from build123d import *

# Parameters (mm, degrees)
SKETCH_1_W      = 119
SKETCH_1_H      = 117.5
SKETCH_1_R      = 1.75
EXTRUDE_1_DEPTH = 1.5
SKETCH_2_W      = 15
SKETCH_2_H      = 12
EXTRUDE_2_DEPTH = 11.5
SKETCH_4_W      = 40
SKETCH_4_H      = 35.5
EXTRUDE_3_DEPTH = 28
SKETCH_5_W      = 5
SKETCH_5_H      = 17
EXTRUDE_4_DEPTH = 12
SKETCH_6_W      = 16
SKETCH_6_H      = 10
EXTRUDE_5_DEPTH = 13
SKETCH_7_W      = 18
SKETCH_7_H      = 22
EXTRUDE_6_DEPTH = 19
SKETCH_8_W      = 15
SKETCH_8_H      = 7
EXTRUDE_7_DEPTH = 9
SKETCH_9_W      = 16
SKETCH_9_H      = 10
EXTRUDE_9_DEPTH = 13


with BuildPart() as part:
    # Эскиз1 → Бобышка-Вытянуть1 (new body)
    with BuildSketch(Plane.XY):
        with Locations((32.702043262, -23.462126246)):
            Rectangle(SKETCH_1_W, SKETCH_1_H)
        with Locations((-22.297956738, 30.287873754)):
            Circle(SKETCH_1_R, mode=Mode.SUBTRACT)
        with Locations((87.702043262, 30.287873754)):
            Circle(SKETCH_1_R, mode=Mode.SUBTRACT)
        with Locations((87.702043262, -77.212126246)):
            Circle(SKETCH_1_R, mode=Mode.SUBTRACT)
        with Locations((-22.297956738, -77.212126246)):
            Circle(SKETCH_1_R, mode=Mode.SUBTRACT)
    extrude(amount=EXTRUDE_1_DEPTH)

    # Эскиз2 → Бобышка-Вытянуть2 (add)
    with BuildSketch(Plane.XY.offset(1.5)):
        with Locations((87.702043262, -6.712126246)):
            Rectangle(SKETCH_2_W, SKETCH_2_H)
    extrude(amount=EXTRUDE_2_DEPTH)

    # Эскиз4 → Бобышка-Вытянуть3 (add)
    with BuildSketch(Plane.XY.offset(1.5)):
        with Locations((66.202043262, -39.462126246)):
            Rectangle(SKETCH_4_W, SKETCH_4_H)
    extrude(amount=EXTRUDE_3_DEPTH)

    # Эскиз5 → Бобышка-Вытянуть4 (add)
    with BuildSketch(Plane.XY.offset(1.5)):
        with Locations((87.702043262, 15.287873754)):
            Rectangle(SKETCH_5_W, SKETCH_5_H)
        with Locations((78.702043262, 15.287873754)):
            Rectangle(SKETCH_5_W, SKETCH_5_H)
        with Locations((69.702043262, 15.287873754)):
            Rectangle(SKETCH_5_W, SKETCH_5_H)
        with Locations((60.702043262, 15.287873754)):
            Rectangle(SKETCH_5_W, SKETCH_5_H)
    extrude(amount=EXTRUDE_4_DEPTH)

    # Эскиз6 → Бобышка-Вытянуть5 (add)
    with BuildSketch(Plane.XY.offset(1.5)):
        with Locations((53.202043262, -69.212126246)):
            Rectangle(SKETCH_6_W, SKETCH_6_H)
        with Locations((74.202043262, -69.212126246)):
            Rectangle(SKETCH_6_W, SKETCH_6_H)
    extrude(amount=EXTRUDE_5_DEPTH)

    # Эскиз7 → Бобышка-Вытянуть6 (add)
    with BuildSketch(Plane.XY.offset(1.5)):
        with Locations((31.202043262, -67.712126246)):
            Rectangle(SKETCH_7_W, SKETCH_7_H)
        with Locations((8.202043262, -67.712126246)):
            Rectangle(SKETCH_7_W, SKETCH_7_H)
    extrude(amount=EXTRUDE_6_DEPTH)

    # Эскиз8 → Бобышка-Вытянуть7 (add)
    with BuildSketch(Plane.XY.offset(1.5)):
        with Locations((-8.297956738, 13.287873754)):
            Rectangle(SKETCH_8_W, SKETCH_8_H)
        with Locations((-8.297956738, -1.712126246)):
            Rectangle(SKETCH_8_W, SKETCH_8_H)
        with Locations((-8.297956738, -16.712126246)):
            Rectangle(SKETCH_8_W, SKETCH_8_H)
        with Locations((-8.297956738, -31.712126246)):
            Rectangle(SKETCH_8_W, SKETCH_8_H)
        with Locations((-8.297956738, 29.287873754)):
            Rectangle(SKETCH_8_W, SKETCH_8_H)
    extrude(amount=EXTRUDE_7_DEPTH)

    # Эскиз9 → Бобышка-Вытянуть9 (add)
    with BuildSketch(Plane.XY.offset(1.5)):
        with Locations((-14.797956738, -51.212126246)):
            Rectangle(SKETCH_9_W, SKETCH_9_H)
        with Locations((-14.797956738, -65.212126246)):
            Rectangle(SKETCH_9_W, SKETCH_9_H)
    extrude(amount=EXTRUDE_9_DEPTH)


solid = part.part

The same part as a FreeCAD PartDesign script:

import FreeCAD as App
import Part
import Sketcher
Q = App.Units.Quantity

doc = App.newDocument("Part")
params = doc.addObject("Spreadsheet::Sheet", "Params")
for row, (alias, value) in enumerate([
    ("sketch1_diameter", "3.5 mm"),
    ("sketch1_width", "119 mm"),
    ("sketch1_height", "117.5 mm"),
    ("pad1_length", "1.5 mm"),
    ("sketch2_width", "15 mm"),
    ("sketch2_height", "12 mm"),
    ("pad2_length", "11.5 mm"),
    ("sketch3_width", "40 mm"),
    ("sketch3_height", "35.5 mm"),
    ("pad3_length", "28 mm"),
    ("sketch4_width", "5 mm"),
    ("sketch4_height", "17 mm"),
    ("pad4_length", "12 mm"),
    ("sketch5_width", "16 mm"),
    ("sketch5_height", "10 mm"),
    ("pad5_length", "13 mm"),
    ("sketch6_width", "18 mm"),
    ("sketch6_height", "22 mm"),
    ("pad6_length", "19 mm"),
    ("sketch7_width", "15 mm"),
    ("sketch7_height", "7 mm"),
    ("pad7_length", "9 mm"),
    ("sketch8_width", "16 mm"),
    ("sketch8_height", "10 mm"),
    ("pad8_length", "13 mm"),
], start=1):
    params.set(f"A{row}", alias)
    params.set(f"B{row}", "=" + value)
    params.setAlias(f"B{row}", alias)

body = doc.addObject("PartDesign::Body", "Body")

sketch1 = doc.addObject("Sketcher::SketchObject", "Sketch")
body.addObject(sketch1)
sketch1.AttachmentSupport = (doc.XY_Plane, [""])
sketch1.MapMode = "FlatFace"
sketch1.addGeometry([
    Part.LineSegment(App.Vector(-26.8, 35.3, 0), App.Vector(-26.8, -82.2, 0)),
    Part.LineSegment(App.Vector(-26.8, -82.2, 0), App.Vector(92.2, -82.2, 0)),
    Part.LineSegment(App.Vector(92.2, -82.2, 0), App.Vector(92.2, 35.3, 0)),
    Part.LineSegment(App.Vector(92.2, 35.3, 0), App.Vector(-26.8, 35.3, 0)),
    Part.Circle(App.Vector(-22.3, -77.2, 0), App.Vector(0, 0, 1), 1.8),
    Part.Circle(App.Vector(87.7, -77.2, 0), App.Vector(0, 0, 1), 1.8),
    Part.Circle(App.Vector(-22.3, 30.3, 0), App.Vector(0, 0, 1), 1.8),
    Part.Circle(App.Vector(87.7, 30.3, 0), App.Vector(0, 0, 1), 1.8),
], False)
sketch1.addConstraint([
    Sketcher.Constraint("Coincident", 0, 2, 1, 1),
    Sketcher.Constraint("Coincident", 1, 2, 2, 1),
    Sketcher.Constraint("Coincident", 2, 2, 3, 1),
    Sketcher.Constraint("Coincident", 3, 2, 0, 1),
    Sketcher.Constraint("Vertical", 0),
    Sketcher.Constraint("Horizontal", 1),
    Sketcher.Constraint("Vertical", 2),
    Sketcher.Constraint("Horizontal", 3),
    Sketcher.Constraint("Equal", 4, 5),
    Sketcher.Constraint("Equal", 5, 6),
    Sketcher.Constraint("Equal", 6, 7),
    Sketcher.Constraint("Horizontal", 4, 3, 5, 3),
    Sketcher.Constraint("Horizontal", 6, 3, 7, 3),
    Sketcher.Constraint("Vertical", 4, 3, 6, 3),
    Sketcher.Constraint("Vertical", 5, 3, 7, 3),
    Sketcher.Constraint("Diameter", 4, Q("3.5 mm")),
    Sketcher.Constraint("DistanceX", 1, 1, 1, 2, Q("119 mm")),
    Sketcher.Constraint("DistanceY", 0, 2, 0, 1, Q("117.5 mm")),
    Sketcher.Constraint("DistanceX", 4, 3, 5, 3, Q("110 mm")),
    Sketcher.Constraint("DistanceY", 0, 2, 4, 3, Q("5 mm")),
    Sketcher.Constraint("DistanceY", 7, 3, 2, 2, Q("5 mm")),
    Sketcher.Constraint("DistanceX", 0, 2, 4, 3, Q("4.5 mm")),
    Sketcher.Constraint("DistanceX", 4, 3, -1, 1, Q("22.297957 mm")),
    Sketcher.Constraint("DistanceY", 4, 3, -1, 1, Q("77.212126 mm")),
])
sketch1.setExpression("Constraints[15]", "Params.sketch1_diameter")
sketch1.setExpression("Constraints[16]", "Params.sketch1_width")
sketch1.setExpression("Constraints[17]", "Params.sketch1_height")
pad1 = doc.addObject("PartDesign::Pad", "Pad")
body.addObject(pad1)
pad1.Profile = sketch1
pad1.setExpression("Length", "Params.pad1_length")

sketch2 = doc.addObject("Sketcher::SketchObject", "Sketch001")
body.addObject(sketch2)
sketch2.AttachmentSupport = (doc.XY_Plane, [""])
sketch2.MapMode = "FlatFace"
sketch2.AttachmentOffset = App.Placement(App.Vector(0, 0, 1.5), App.Rotation())
sketch2.addGeometry([
    Part.LineSegment(App.Vector(80, -1, 0), App.Vector(80, -13, 0)),
    Part.LineSegment(App.Vector(80, -13, 0), App.Vector(95, -13, 0)),
    Part.LineSegment(App.Vector(95, -13, 0), App.Vector(95, -1, 0)),
    Part.LineSegment(App.Vector(95, -1, 0), App.Vector(80, -1, 0)),
], False)
sketch2.addConstraint([
    Sketcher.Constraint("Coincident", 0, 2, 1, 1),
    Sketcher.Constraint("Coincident", 1, 2, 2, 1),
    Sketcher.Constraint("Coincident", 2, 2, 3, 1),
    Sketcher.Constraint("Coincident", 3, 2, 0, 1),
    Sketcher.Constraint("Vertical", 0),
    Sketcher.Constraint("Horizontal", 1),
    Sketcher.Constraint("Vertical", 2),
    Sketcher.Constraint("Horizontal", 3),
    Sketcher.Constraint("DistanceX", 1, 1, 1, 2, Q("15 mm")),
    Sketcher.Constraint("DistanceY", 0, 2, 0, 1, Q("12 mm")),
    Sketcher.Constraint("DistanceX", -1, 1, 0, 2, Q("80.202043 mm")),
    Sketcher.Constraint("DistanceY", 0, 2, -1, 1, Q("12.712126 mm")),
])
sketch2.setExpression("Constraints[8]", "Params.sketch2_width")
sketch2.setExpression("Constraints[9]", "Params.sketch2_height")
pad2 = doc.addObject("PartDesign::Pad", "Pad001")
body.addObject(pad2)
pad2.Profile = sketch2
pad2.setExpression("Length", "Params.pad2_length")

sketch3 = doc.addObject("Sketcher::SketchObject", "Sketch002")
body.addObject(sketch3)
sketch3.AttachmentSupport = (doc.XY_Plane, [""])
sketch3.MapMode = "FlatFace"
sketch3.AttachmentOffset = App.Placement(App.Vector(0, 0, 1.5), App.Rotation())
sketch3.addGeometry([
    Part.LineSegment(App.Vector(46, -22, 0), App.Vector(46, -57, 0)),
    Part.LineSegment(App.Vector(46, -57, 0), App.Vector(86, -57, 0)),
    Part.LineSegment(App.Vector(86, -57, 0), App.Vector(86, -22, 0)),
    Part.LineSegment(App.Vector(86, -22, 0), App.Vector(46, -22, 0)),
], False)
sketch3.addConstraint([
    Sketcher.Constraint("Coincident", 0, 2, 1, 1),
    Sketcher.Constraint("Coincident", 1, 2, 2, 1),
    Sketcher.Constraint("Coincident", 2, 2, 3, 1),
    Sketcher.Constraint("Coincident", 3, 2, 0, 1),
    Sketcher.Constraint("Vertical", 0),
    Sketcher.Constraint("Horizontal", 1),
    Sketcher.Constraint("Vertical", 2),
    Sketcher.Constraint("Horizontal", 3),
    Sketcher.Constraint("DistanceX", 1, 1, 1, 2, Q("40 mm")),
    Sketcher.Constraint("DistanceY", 0, 2, 0, 1, Q("35.5 mm")),
    Sketcher.Constraint("DistanceX", -1, 1, 0, 2, Q("46.202043 mm")),
    Sketcher.Constraint("DistanceY", 0, 2, -1, 1, Q("57.212126 mm")),
])
sketch3.setExpression("Constraints[8]", "Params.sketch3_width")
sketch3.setExpression("Constraints[9]", "Params.sketch3_height")
pad3 = doc.addObject("PartDesign::Pad", "Pad002")
body.addObject(pad3)
pad3.Profile = sketch3
pad3.setExpression("Length", "Params.pad3_length")

sketch4 = doc.addObject("Sketcher::SketchObject", "Sketch003")
body.addObject(sketch4)
sketch4.AttachmentSupport = (doc.XY_Plane, [""])
sketch4.MapMode = "FlatFace"
sketch4.AttachmentOffset = App.Placement(App.Vector(0, 0, 1.5), App.Rotation())
sketch4.addGeometry([
    Part.LineSegment(App.Vector(85, 24, 0), App.Vector(85, 7, 0)),
    Part.LineSegment(App.Vector(85, 7, 0), App.Vector(90, 7, 0)),
    Part.LineSegment(App.Vector(90, 7, 0), App.Vector(90, 24, 0)),
    Part.LineSegment(App.Vector(90, 24, 0), App.Vector(85, 24, 0)),
    Part.LineSegment(App.Vector(76, 24, 0), App.Vector(76, 7, 0)),
    Part.LineSegment(App.Vector(76, 7, 0), App.Vector(81, 7, 0)),
    Part.LineSegment(App.Vector(81, 7, 0), App.Vector(81, 24, 0)),
    Part.LineSegment(App.Vector(81, 24, 0), App.Vector(76, 24, 0)),
    Part.LineSegment(App.Vector(67, 24, 0), App.Vector(67, 7, 0)),
    Part.LineSegment(App.Vector(67, 7, 0), App.Vector(72, 7, 0)),
    Part.LineSegment(App.Vector(72, 7, 0), App.Vector(72, 24, 0)),
    Part.LineSegment(App.Vector(72, 24, 0), App.Vector(67, 24, 0)),
    Part.LineSegment(App.Vector(58, 24, 0), App.Vector(58, 7, 0)),
    Part.LineSegment(App.Vector(58, 7, 0), App.Vector(63, 7, 0)),
    Part.LineSegment(App.Vector(63, 7, 0), App.Vector(63, 24, 0)),
    Part.LineSegment(App.Vector(63, 24, 0), App.Vector(58, 24, 0)),
], False)
sketch4.addConstraint([
    Sketcher.Constraint("Coincident", 0, 2, 1, 1),
    Sketcher.Constraint("Coincident", 1, 2, 2, 1),
    Sketcher.Constraint("Coincident", 2, 2, 3, 1),
    Sketcher.Constraint("Coincident", 3, 2, 0, 1),
    Sketcher.Constraint("Coincident", 4, 2, 5, 1),
    Sketcher.Constraint("Coincident", 5, 2, 6, 1),
    Sketcher.Constraint("Coincident", 6, 2, 7, 1),
    Sketcher.Constraint("Coincident", 7, 2, 4, 1),
    Sketcher.Constraint("Coincident", 8, 2, 9, 1),
    Sketcher.Constraint("Coincident", 9, 2, 10, 1),
    Sketcher.Constraint("Coincident", 10, 2, 11, 1),
    Sketcher.Constraint("Coincident", 11, 2, 8, 1),
    Sketcher.Constraint("Coincident", 12, 2, 13, 1),
    Sketcher.Constraint("Coincident", 13, 2, 14, 1),
    Sketcher.Constraint("Coincident", 14, 2, 15, 1),
    Sketcher.Constraint("Coincident", 15, 2, 12, 1),
    Sketcher.Constraint("Vertical", 0),
    Sketcher.Constraint("Horizontal", 1),
    Sketcher.Constraint("Vertical", 2),
    Sketcher.Constraint("Horizontal", 3),
    Sketcher.Constraint("Vertical", 4),
    Sketcher.Constraint("Horizontal", 5),
    Sketcher.Constraint("Vertical", 6),
    Sketcher.Constraint("Horizontal", 7),
    Sketcher.Constraint("Vertical", 8),
    Sketcher.Constraint("Horizontal", 9),
    Sketcher.Constraint("Vertical", 10),
    Sketcher.Constraint("Horizontal", 11),
    Sketcher.Constraint("Vertical", 12),
    Sketcher.Constraint("Horizontal", 13),
    Sketcher.Constraint("Vertical", 14),
    Sketcher.Constraint("Horizontal", 15),
    Sketcher.Constraint("Horizontal", 1, 2, 4, 2),
    Sketcher.Constraint("Horizontal", 3, 2, 6, 2),
    Sketcher.Constraint("Horizontal", 5, 2, 8, 2),
    Sketcher.Constraint("Horizontal", 7, 2, 10, 2),
    Sketcher.Constraint("Horizontal", 9, 2, 12, 2),
    Sketcher.Constraint("Horizontal", 11, 2, 14, 2),
    Sketcher.Constraint("Equal", 3, 5),
    Sketcher.Constraint("Equal", 7, 9),
    Sketcher.Constraint("Equal", 11, 13),
    Sketcher.Constraint("DistanceX", 1, 1, 1, 2, Q("5 mm")),
    Sketcher.Constraint("DistanceY", 0, 2, 0, 1, Q("17 mm")),
    Sketcher.Constraint("DistanceX", 4, 2, 0, 2, Q("9 mm")),
    Sketcher.Constraint("DistanceX", 8, 2, 4, 2, Q("9 mm")),
    Sketcher.Constraint("DistanceX", 12, 2, 8, 2, Q("9 mm")),
    Sketcher.Constraint("DistanceX", -1, 1, 0, 2, Q("85.202043 mm")),
    Sketcher.Constraint("DistanceY", -1, 1, 0, 2, Q("6.787874 mm")),
])
sketch4.setExpression("Constraints[41]", "Params.sketch4_width")
sketch4.setExpression("Constraints[42]", "Params.sketch4_height")
pad4 = doc.addObject("PartDesign::Pad", "Pad003")
body.addObject(pad4)
pad4.Profile = sketch4
pad4.setExpression("Length", "Params.pad4_length")

sketch5 = doc.addObject("Sketcher::SketchObject", "Sketch004")
body.addObject(sketch5)
sketch5.AttachmentSupport = (doc.XY_Plane, [""])
sketch5.MapMode = "FlatFace"
sketch5.AttachmentOffset = App.Placement(App.Vector(0, 0, 1.5), App.Rotation())
sketch5.addGeometry([
    Part.LineSegment(App.Vector(45, -64, 0), App.Vector(45, -74, 0)),
    Part.LineSegment(App.Vector(45, -74, 0), App.Vector(61, -74, 0)),
    Part.LineSegment(App.Vector(61, -74, 0), App.Vector(61, -64, 0)),
    Part.LineSegment(App.Vector(61, -64, 0), App.Vector(45, -64, 0)),
    Part.LineSegment(App.Vector(66, -64, 0), App.Vector(66, -74, 0)),
    Part.LineSegment(App.Vector(66, -74, 0), App.Vector(82, -74, 0)),
    Part.LineSegment(App.Vector(82, -74, 0), App.Vector(82, -64, 0)),
    Part.LineSegment(App.Vector(82, -64, 0), App.Vector(66, -64, 0)),
], False)
sketch5.addConstraint([
    Sketcher.Constraint("Coincident", 0, 2, 1, 1),
    Sketcher.Constraint("Coincident", 1, 2, 2, 1),
    Sketcher.Constraint("Coincident", 2, 2, 3, 1),
    Sketcher.Constraint("Coincident", 3, 2, 0, 1),
    Sketcher.Constraint("Coincident", 4, 2, 5, 1),
    Sketcher.Constraint("Coincident", 5, 2, 6, 1),
    Sketcher.Constraint("Coincident", 6, 2, 7, 1),
    Sketcher.Constraint("Coincident", 7, 2, 4, 1),
    Sketcher.Constraint("Vertical", 0),
    Sketcher.Constraint("Horizontal", 1),
    Sketcher.Constraint("Vertical", 2),
    Sketcher.Constraint("Horizontal", 3),
    Sketcher.Constraint("Vertical", 4),
    Sketcher.Constraint("Horizontal", 5),
    Sketcher.Constraint("Vertical", 6),
    Sketcher.Constraint("Horizontal", 7),
    Sketcher.Constraint("Horizontal", 1, 2, 4, 2),
    Sketcher.Constraint("Horizontal", 3, 2, 6, 2),
    Sketcher.Constraint("Equal", 3, 5),
    Sketcher.Constraint("DistanceX", 1, 1, 1, 2, Q("16 mm")),
    Sketcher.Constraint("DistanceY", 0, 2, 0, 1, Q("10 mm")),
    Sketcher.Constraint("DistanceX", 1, 2, 4, 2, Q("5 mm")),
    Sketcher.Constraint("DistanceX", -1, 1, 0, 2, Q("45.202043 mm")),
    Sketcher.Constraint("DistanceY", 0, 2, -1, 1, Q("74.212126 mm")),
])
sketch5.setExpression("Constraints[19]", "Params.sketch5_width")
sketch5.setExpression("Constraints[20]", "Params.sketch5_height")
pad5 = doc.addObject("PartDesign::Pad", "Pad004")
body.addObject(pad5)
pad5.Profile = sketch5
pad5.setExpression("Length", "Params.pad5_length")

sketch6 = doc.addObject("Sketcher::SketchObject", "Sketch005")
body.addObject(sketch6)
sketch6.AttachmentSupport = (doc.XY_Plane, [""])
sketch6.MapMode = "FlatFace"
sketch6.AttachmentOffset = App.Placement(App.Vector(0, 0, 1.5), App.Rotation())
sketch6.addGeometry([
    Part.LineSegment(App.Vector(22, -57, 0), App.Vector(22, -79, 0)),
    Part.LineSegment(App.Vector(22, -79, 0), App.Vector(40, -79, 0)),
    Part.LineSegment(App.Vector(40, -79, 0), App.Vector(40, -57, 0)),
    Part.LineSegment(App.Vector(40, -57, 0), App.Vector(22, -57, 0)),
    Part.LineSegment(App.Vector(-1, -57, 0), App.Vector(-1, -79, 0)),
    Part.LineSegment(App.Vector(-1, -79, 0), App.Vector(17, -79, 0)),
    Part.LineSegment(App.Vector(17, -79, 0), App.Vector(17, -57, 0)),
    Part.LineSegment(App.Vector(17, -57, 0), App.Vector(-1, -57, 0)),
], False)
sketch6.addConstraint([
    Sketcher.Constraint("Coincident", 0, 2, 1, 1),
    Sketcher.Constraint("Coincident", 1, 2, 2, 1),
    Sketcher.Constraint("Coincident", 2, 2, 3, 1),
    Sketcher.Constraint("Coincident", 3, 2, 0, 1),
    Sketcher.Constraint("Coincident", 4, 2, 5, 1),
    Sketcher.Constraint("Coincident", 5, 2, 6, 1),
    Sketcher.Constraint("Coincident", 6, 2, 7, 1),
    Sketcher.Constraint("Coincident", 7, 2, 4, 1),
    Sketcher.Constraint("Vertical", 0),
    Sketcher.Constraint("Horizontal", 1),
    Sketcher.Constraint("Vertical", 2),
    Sketcher.Constraint("Horizontal", 3),
    Sketcher.Constraint("Vertical", 4),
    Sketcher.Constraint("Horizontal", 5),
    Sketcher.Constraint("Vertical", 6),
    Sketcher.Constraint("Horizontal", 7),
    Sketcher.Constraint("Horizontal", 1, 2, 4, 2),
    Sketcher.Constraint("Horizontal", 3, 2, 6, 2),
    Sketcher.Constraint("Equal", 3, 5),
    Sketcher.Constraint("DistanceX", 1, 1, 1, 2, Q("18 mm")),
    Sketcher.Constraint("DistanceY", 0, 2, 0, 1, Q("22 mm")),
    Sketcher.Constraint("DistanceX", 4, 2, 0, 2, Q("23 mm")),
    Sketcher.Constraint("DistanceX", -1, 1, 0, 2, Q("22.202043 mm")),
    Sketcher.Constraint("DistanceY", 0, 2, -1, 1, Q("78.712126 mm")),
])
sketch6.setExpression("Constraints[19]", "Params.sketch6_width")
sketch6.setExpression("Constraints[20]", "Params.sketch6_height")
pad6 = doc.addObject("PartDesign::Pad", "Pad005")
body.addObject(pad6)
pad6.Profile = sketch6
pad6.setExpression("Length", "Params.pad6_length")

sketch7 = doc.addObject("Sketcher::SketchObject", "Sketch006")
body.addObject(sketch7)
sketch7.AttachmentSupport = (doc.XY_Plane, [""])
sketch7.MapMode = "FlatFace"
sketch7.AttachmentOffset = App.Placement(App.Vector(0, 0, 1.5), App.Rotation())
sketch7.addGeometry([
    Part.LineSegment(App.Vector(-16, 17, 0), App.Vector(-16, 10, 0)),
    Part.LineSegment(App.Vector(-16, 10, 0), App.Vector(-1, 10, 0)),
    Part.LineSegment(App.Vector(-1, 10, 0), App.Vector(-1, 17, 0)),
    Part.LineSegment(App.Vector(-1, 17, 0), App.Vector(-16, 17, 0)),
    Part.LineSegment(App.Vector(-16, 2, 0), App.Vector(-16, -5, 0)),
    Part.LineSegment(App.Vector(-16, -5, 0), App.Vector(-1, -5, 0)),
    Part.LineSegment(App.Vector(-1, -5, 0), App.Vector(-1, 2, 0)),
    Part.LineSegment(App.Vector(-1, 2, 0), App.Vector(-16, 2, 0)),
    Part.LineSegment(App.Vector(-16, -13, 0), App.Vector(-16, -20, 0)),
    Part.LineSegment(App.Vector(-16, -20, 0), App.Vector(-1, -20, 0)),
    Part.LineSegment(App.Vector(-1, -20, 0), App.Vector(-1, -13, 0)),
    Part.LineSegment(App.Vector(-1, -13, 0), App.Vector(-16, -13, 0)),
    Part.LineSegment(App.Vector(-16, -28, 0), App.Vector(-16, -35, 0)),
    Part.LineSegment(App.Vector(-16, -35, 0), App.Vector(-1, -35, 0)),
    Part.LineSegment(App.Vector(-1, -35, 0), App.Vector(-1, -28, 0)),
    Part.LineSegment(App.Vector(-1, -28, 0), App.Vector(-16, -28, 0)),
    Part.LineSegment(App.Vector(-16, 33, 0), App.Vector(-16, 26, 0)),
    Part.LineSegment(App.Vector(-16, 26, 0), App.Vector(-1, 26, 0)),
    Part.LineSegment(App.Vector(-1, 26, 0), App.Vector(-1, 33, 0)),
    Part.LineSegment(App.Vector(-1, 33, 0), App.Vector(-16, 33, 0)),
], False)
sketch7.addConstraint([
    Sketcher.Constraint("Coincident", 0, 2, 1, 1),
    Sketcher.Constraint("Coincident", 1, 2, 2, 1),
    Sketcher.Constraint("Coincident", 2, 2, 3, 1),
    Sketcher.Constraint("Coincident", 3, 2, 0, 1),
    Sketcher.Constraint("Coincident", 4, 2, 5, 1),
    Sketcher.Constraint("Coincident", 5, 2, 6, 1),
    Sketcher.Constraint("Coincident", 6, 2, 7, 1),
    Sketcher.Constraint("Coincident", 7, 2, 4, 1),
    Sketcher.Constraint("Coincident", 8, 2, 9, 1),
    Sketcher.Constraint("Coincident", 9, 2, 10, 1),
    Sketcher.Constraint("Coincident", 10, 2, 11, 1),
    Sketcher.Constraint("Coincident", 11, 2, 8, 1),
    Sketcher.Constraint("Coincident", 12, 2, 13, 1),
    Sketcher.Constraint("Coincident", 13, 2, 14, 1),
    Sketcher.Constraint("Coincident", 14, 2, 15, 1),
    Sketcher.Constraint("Coincident", 15, 2, 12, 1),
    Sketcher.Constraint("Coincident", 16, 2, 17, 1),
    Sketcher.Constraint("Coincident", 17, 2, 18, 1),
    Sketcher.Constraint("Coincident", 18, 2, 19, 1),
    Sketcher.Constraint("Coincident", 19, 2, 16, 1),
    Sketcher.Constraint("Vertical", 0),
    Sketcher.Constraint("Horizontal", 1),
    Sketcher.Constraint("Vertical", 2),
    Sketcher.Constraint("Horizontal", 3),
    Sketcher.Constraint("Vertical", 4),
    Sketcher.Constraint("Horizontal", 5),
    Sketcher.Constraint("Vertical", 6),
    Sketcher.Constraint("Horizontal", 7),
    Sketcher.Constraint("Vertical", 8),
    Sketcher.Constraint("Horizontal", 9),
    Sketcher.Constraint("Vertical", 10),
    Sketcher.Constraint("Horizontal", 11),
    Sketcher.Constraint("Vertical", 12),
    Sketcher.Constraint("Horizontal", 13),
    Sketcher.Constraint("Vertical", 14),
    Sketcher.Constraint("Horizontal", 15),
    Sketcher.Constraint("Vertical", 16),
    Sketcher.Constraint("Horizontal", 17),
    Sketcher.Constraint("Vertical", 18),
    Sketcher.Constraint("Horizontal", 19),
    Sketcher.Constraint("Vertical", 3, 2, 4, 2),
    Sketcher.Constraint("Vertical", 2, 2, 5, 2),
    Sketcher.Constraint("Vertical", 7, 2, 8, 2),
    Sketcher.Constraint("Vertical", 6, 2, 9, 2),
    Sketcher.Constraint("Vertical", 11, 2, 12, 2),
    Sketcher.Constraint("Vertical", 10, 2, 13, 2),
    Sketcher.Constraint("Vertical", 15, 2, 16, 2),
    Sketcher.Constraint("Vertical", 14, 2, 17, 2),
    Sketcher.Constraint("Equal", 2, 4),
    Sketcher.Constraint("Equal", 6, 8),
    Sketcher.Constraint("Equal", 10, 12),
    Sketcher.Constraint("Equal", 14, 16),
    Sketcher.Constraint("DistanceX", 1, 1, 1, 2, Q("15 mm")),
    Sketcher.Constraint("DistanceY", 0, 2, 0, 1, Q("7 mm")),
    Sketcher.Constraint("DistanceY", 4, 2, 0, 2, Q("15 mm")),
    Sketcher.Constraint("DistanceY", 8, 2, 4, 2, Q("15 mm")),
    Sketcher.Constraint("DistanceY", 12, 2, 8, 2, Q("15 mm")),
    Sketcher.Constraint("DistanceY", 3, 2, 16, 2, Q("9 mm")),
    Sketcher.Constraint("DistanceX", 0, 2, -1, 1, Q("15.797957 mm")),
    Sketcher.Constraint("DistanceY", -1, 1, 0, 2, Q("9.787874 mm")),
])
sketch7.setExpression("Constraints[52]", "Params.sketch7_width")
sketch7.setExpression("Constraints[53]", "Params.sketch7_height")
pad7 = doc.addObject("PartDesign::Pad", "Pad006")
body.addObject(pad7)
pad7.Profile = sketch7
pad7.setExpression("Length", "Params.pad7_length")

sketch8 = doc.addObject("Sketcher::SketchObject", "Sketch007")
body.addObject(sketch8)
sketch8.AttachmentSupport = (doc.XY_Plane, [""])
sketch8.MapMode = "FlatFace"
sketch8.AttachmentOffset = App.Placement(App.Vector(0, 0, 1.5), App.Rotation())
sketch8.addGeometry([
    Part.LineSegment(App.Vector(-23, -46, 0), App.Vector(-23, -56, 0)),
    Part.LineSegment(App.Vector(-23, -56, 0), App.Vector(-7, -56, 0)),
    Part.LineSegment(App.Vector(-7, -56, 0), App.Vector(-7, -46, 0)),
    Part.LineSegment(App.Vector(-7, -46, 0), App.Vector(-23, -46, 0)),
    Part.LineSegment(App.Vector(-23, -60, 0), App.Vector(-23, -70, 0)),
    Part.LineSegment(App.Vector(-23, -70, 0), App.Vector(-7, -70, 0)),
    Part.LineSegment(App.Vector(-7, -70, 0), App.Vector(-7, -60, 0)),
    Part.LineSegment(App.Vector(-7, -60, 0), App.Vector(-23, -60, 0)),
], False)
sketch8.addConstraint([
    Sketcher.Constraint("Coincident", 0, 2, 1, 1),
    Sketcher.Constraint("Coincident", 1, 2, 2, 1),
    Sketcher.Constraint("Coincident", 2, 2, 3, 1),
    Sketcher.Constraint("Coincident", 3, 2, 0, 1),
    Sketcher.Constraint("Coincident", 4, 2, 5, 1),
    Sketcher.Constraint("Coincident", 5, 2, 6, 1),
    Sketcher.Constraint("Coincident", 6, 2, 7, 1),
    Sketcher.Constraint("Coincident", 7, 2, 4, 1),
    Sketcher.Constraint("Vertical", 0),
    Sketcher.Constraint("Horizontal", 1),
    Sketcher.Constraint("Vertical", 2),
    Sketcher.Constraint("Horizontal", 3),
    Sketcher.Constraint("Vertical", 4),
    Sketcher.Constraint("Horizontal", 5),
    Sketcher.Constraint("Vertical", 6),
    Sketcher.Constraint("Horizontal", 7),
    Sketcher.Constraint("Vertical", 3, 2, 4, 2),
    Sketcher.Constraint("Vertical", 2, 2, 5, 2),
    Sketcher.Constraint("Equal", 2, 4),
    Sketcher.Constraint("DistanceX", 1, 1, 1, 2, Q("16 mm")),
    Sketcher.Constraint("DistanceY", 0, 2, 0, 1, Q("10 mm")),
    Sketcher.Constraint("DistanceY", 4, 2, 0, 2, Q("14 mm")),
    Sketcher.Constraint("DistanceX", 0, 2, -1, 1, Q("22.797957 mm")),
    Sketcher.Constraint("DistanceY", 0, 2, -1, 1, Q("56.212126 mm")),
])
sketch8.setExpression("Constraints[19]", "Params.sketch8_width")
sketch8.setExpression("Constraints[20]", "Params.sketch8_height")
pad8 = doc.addObject("PartDesign::Pad", "Pad007")
body.addObject(pad8)
pad8.Profile = sketch8
pad8.setExpression("Length", "Params.pad8_length")

doc.recompute()
